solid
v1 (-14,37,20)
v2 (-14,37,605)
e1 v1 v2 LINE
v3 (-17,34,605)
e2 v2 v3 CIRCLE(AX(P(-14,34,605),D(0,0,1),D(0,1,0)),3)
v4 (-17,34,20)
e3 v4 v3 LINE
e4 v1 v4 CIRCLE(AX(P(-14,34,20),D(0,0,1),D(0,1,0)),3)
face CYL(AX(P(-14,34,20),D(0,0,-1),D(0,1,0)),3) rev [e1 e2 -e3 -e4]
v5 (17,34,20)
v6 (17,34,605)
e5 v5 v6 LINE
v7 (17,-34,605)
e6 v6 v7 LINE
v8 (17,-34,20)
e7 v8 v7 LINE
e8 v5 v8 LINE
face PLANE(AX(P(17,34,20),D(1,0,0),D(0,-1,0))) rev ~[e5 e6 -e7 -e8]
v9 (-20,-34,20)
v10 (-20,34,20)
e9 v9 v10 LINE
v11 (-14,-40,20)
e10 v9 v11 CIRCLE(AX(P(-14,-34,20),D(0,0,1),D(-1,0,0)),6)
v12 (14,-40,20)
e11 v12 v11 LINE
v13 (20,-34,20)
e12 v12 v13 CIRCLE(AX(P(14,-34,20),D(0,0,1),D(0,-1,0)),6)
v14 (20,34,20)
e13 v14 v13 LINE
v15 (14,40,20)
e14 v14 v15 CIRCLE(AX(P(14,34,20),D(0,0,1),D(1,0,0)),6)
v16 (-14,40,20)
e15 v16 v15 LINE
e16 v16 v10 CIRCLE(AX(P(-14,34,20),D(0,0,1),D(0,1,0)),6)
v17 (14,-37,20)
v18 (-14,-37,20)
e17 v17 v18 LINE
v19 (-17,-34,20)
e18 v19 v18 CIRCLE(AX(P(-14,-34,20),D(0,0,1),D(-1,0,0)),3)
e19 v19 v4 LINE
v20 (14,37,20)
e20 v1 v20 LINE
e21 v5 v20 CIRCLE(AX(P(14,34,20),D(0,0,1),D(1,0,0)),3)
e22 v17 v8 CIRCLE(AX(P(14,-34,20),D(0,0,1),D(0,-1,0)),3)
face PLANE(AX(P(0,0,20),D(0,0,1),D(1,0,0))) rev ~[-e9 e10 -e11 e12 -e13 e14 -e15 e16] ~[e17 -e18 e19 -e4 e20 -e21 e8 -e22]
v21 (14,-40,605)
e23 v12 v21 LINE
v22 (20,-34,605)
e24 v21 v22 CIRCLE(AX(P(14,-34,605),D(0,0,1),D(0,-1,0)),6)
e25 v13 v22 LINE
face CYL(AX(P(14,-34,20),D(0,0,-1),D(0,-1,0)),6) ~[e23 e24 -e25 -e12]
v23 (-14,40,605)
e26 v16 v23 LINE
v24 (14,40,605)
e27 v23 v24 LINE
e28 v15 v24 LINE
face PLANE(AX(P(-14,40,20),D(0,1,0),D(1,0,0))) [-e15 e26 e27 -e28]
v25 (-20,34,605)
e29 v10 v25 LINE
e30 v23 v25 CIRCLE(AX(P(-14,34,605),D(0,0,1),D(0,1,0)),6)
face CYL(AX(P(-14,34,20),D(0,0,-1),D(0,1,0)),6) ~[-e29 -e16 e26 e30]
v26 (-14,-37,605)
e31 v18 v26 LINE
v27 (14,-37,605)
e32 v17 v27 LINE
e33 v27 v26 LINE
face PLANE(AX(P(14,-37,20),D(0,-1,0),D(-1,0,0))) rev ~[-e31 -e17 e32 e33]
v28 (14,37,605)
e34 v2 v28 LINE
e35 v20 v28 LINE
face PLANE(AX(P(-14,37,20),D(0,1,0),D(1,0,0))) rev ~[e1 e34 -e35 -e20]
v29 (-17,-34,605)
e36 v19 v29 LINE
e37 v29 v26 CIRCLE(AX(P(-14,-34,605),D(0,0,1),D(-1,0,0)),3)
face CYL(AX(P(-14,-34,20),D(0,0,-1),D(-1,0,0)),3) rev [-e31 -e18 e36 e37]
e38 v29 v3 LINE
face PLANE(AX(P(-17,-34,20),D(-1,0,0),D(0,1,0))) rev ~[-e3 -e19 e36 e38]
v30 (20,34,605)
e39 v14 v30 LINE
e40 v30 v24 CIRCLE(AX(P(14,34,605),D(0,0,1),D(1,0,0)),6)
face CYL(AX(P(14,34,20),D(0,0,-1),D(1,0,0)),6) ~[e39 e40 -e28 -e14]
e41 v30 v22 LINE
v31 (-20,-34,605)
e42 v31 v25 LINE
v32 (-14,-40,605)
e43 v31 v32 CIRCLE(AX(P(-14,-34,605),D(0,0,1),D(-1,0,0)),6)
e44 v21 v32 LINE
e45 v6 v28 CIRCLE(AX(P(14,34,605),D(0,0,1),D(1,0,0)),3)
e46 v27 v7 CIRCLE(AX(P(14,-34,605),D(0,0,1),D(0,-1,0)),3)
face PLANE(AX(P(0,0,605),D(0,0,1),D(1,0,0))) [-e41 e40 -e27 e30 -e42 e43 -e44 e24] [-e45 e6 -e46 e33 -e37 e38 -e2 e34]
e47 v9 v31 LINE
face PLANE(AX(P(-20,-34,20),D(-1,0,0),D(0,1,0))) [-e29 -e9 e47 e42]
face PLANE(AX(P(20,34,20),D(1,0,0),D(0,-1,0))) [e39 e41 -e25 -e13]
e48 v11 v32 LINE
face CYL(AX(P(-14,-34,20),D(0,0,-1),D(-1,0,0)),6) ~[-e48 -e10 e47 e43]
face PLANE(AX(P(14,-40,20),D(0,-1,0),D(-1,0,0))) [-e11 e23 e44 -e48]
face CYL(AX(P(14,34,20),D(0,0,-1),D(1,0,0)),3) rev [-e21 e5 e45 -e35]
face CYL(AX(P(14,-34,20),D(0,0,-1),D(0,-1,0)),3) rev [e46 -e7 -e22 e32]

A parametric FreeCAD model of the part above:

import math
import FreeCAD as App
import Part
import Sketcher

V = App.Vector
Q = App.Units.Quantity

doc = App.newDocument("Part")
body = doc.addObject("PartDesign::Body", "Body")

sketch1 = body.newObject("Sketcher::SketchObject", "Sketch")
sketch1.AttachmentSupport = (doc.getObject("XY_Plane"), [""])
sketch1.MapMode = "FlatFace"
sketch1.AttachmentOffset = App.Placement(V(0, 0, 20), App.Rotation())
sketch1.addGeometry(Part.LineSegment(V(-20, 34, 0), V(-20, -34, 0)), False)
sketch1.addGeometry(Part.ArcOfCircle(Part.Circle(V(-14, -34, 0), V(0, 0, 1), 6), math.radians(180), math.radians(270)), False)
sketch1.addGeometry(Part.LineSegment(V(-14, -40, 0), V(14, -40, 0)), False)
sketch1.addGeometry(Part.ArcOfCircle(Part.Circle(V(14, -34, 0), V(0, 0, 1), 6), math.radians(-90), math.radians(0)), False)
sketch1.addGeometry(Part.LineSegment(V(20, -34, 0), V(20, 34, 0)), False)
sketch1.addGeometry(Part.ArcOfCircle(Part.Circle(V(14, 34, 0), V(0, 0, 1), 6), math.radians(0), math.radians(90)), False)
sketch1.addGeometry(Part.LineSegment(V(14, 40, 0), V(-14, 40, 0)), False)
sketch1.addGeometry(Part.ArcOfCircle(Part.Circle(V(-14, 34, 0), V(0, 0, 1), 6), math.radians(90), math.radians(180)), False)
sketch1.addGeometry(Part.ArcOfCircle(Part.Circle(V(-14, 34, 0), V(0, 0, 1), 3), math.radians(90), math.radians(180)), False)
sketch1.addGeometry(Part.LineSegment(V(-14, 37, 0), V(14, 37, 0)), False)
sketch1.addGeometry(Part.ArcOfCircle(Part.Circle(V(14, 34, 0), V(0, 0, 1), 3), math.radians(0), math.radians(90)), False)
sketch1.addGeometry(Part.LineSegment(V(17, 34, 0), V(17, -34, 0)), False)
sketch1.addGeometry(Part.ArcOfCircle(Part.Circle(V(14, -34, 0), V(0, 0, 1), 3), math.radians(-90), math.radians(0)), False)
sketch1.addGeometry(Part.LineSegment(V(14, -37, 0), V(-14, -37, 0)), False)
sketch1.addGeometry(Part.ArcOfCircle(Part.Circle(V(-14, -34, 0), V(0, 0, 1), 3), math.radians(180), math.radians(270)), False)
sketch1.addGeometry(Part.LineSegment(V(-17, -34, 0), V(-17, 34, 0)), False)
sketch1.addConstraint(Sketcher.Constraint("Tangent", 0, 2, 1, 1))
sketch1.addConstraint(Sketcher.Constraint("Tangent", 1, 2, 2, 1))
sketch1.addConstraint(Sketcher.Constraint("Tangent", 2, 2, 3, 1))
sketch1.addConstraint(Sketcher.Constraint("Tangent", 3, 2, 4, 1))
sketch1.addConstraint(Sketcher.Constraint("Tangent", 4, 2, 5, 1))
sketch1.addConstraint(Sketcher.Constraint("Tangent", 5, 2, 6, 1))
sketch1.addConstraint(Sketcher.Constraint("Tangent", 6, 2, 7, 1))
sketch1.addConstraint(Sketcher.Constraint("Tangent", 7, 2, 0, 1))
sketch1.addConstraint(Sketcher.Constraint("Tangent", 8, 1, 9, 1))
sketch1.addConstraint(Sketcher.Constraint("Tangent", 9, 2, 10, 2))
sketch1.addConstraint(Sketcher.Constraint("Tangent", 10, 1, 11, 1))
sketch1.addConstraint(Sketcher.Constraint("Tangent", 11, 2, 12, 2))
sketch1.addConstraint(Sketcher.Constraint("Tangent", 12, 1, 13, 1))
sketch1.addConstraint(Sketcher.Constraint("Tangent", 13, 2, 14, 2))
sketch1.addConstraint(Sketcher.Constraint("Tangent", 14, 1, 15, 1))
sketch1.addConstraint(Sketcher.Constraint("Tangent", 15, 2, 8, 2))
sketch1.addConstraint(Sketcher.Constraint("Vertical", 0))
sketch1.addConstraint(Sketcher.Constraint("Horizontal", 2))
sketch1.addConstraint(Sketcher.Constraint("Vertical", 4))
sketch1.addConstraint(Sketcher.Constraint("Horizontal", 6))
sketch1.addConstraint(Sketcher.Constraint("Horizontal", 9))
sketch1.addConstraint(Sketcher.Constraint("Vertical", 11))
sketch1.addConstraint(Sketcher.Constraint("Horizontal", 13))
sketch1.addConstraint(Sketcher.Constraint("Vertical", 15))
sketch1.addConstraint(Sketcher.Constraint("Coincident", 8, 3, 7, 3))
sketch1.addConstraint(Sketcher.Constraint("Coincident", 10, 3, 5, 3))
sketch1.addConstraint(Sketcher.Constraint("Coincident", 12, 3, 3, 3))
sketch1.addConstraint(Sketcher.Constraint("Equal", 1, 3))
sketch1.addConstraint(Sketcher.Constraint("Equal", 3, 5))
sketch1.addConstraint(Sketcher.Constraint("Equal", 5, 7))
sketch1.addConstraint(Sketcher.Constraint("Equal", 12, 14))
sketch1.addConstraint(Sketcher.Constraint("Symmetric", 1, 3, 5, 3, -1, 1))
sketch1.addConstraint(Sketcher.Constraint("Radius", 1, Q("6 mm")))
sketch1.addConstraint(Sketcher.Constraint("Radius", 8, Q("3 mm")))
sketch1.addConstraint(Sketcher.Constraint("DistanceX", 0, 2, -1, 1, Q("20 mm")))
sketch1.addConstraint(Sketcher.Constraint("DistanceY", 1, 2, -1, 1, Q("40 mm")))
pad1 = body.newObject("PartDesign::Pad", "Pad")
pad1.Profile = sketch1
pad1.Length = 585

doc.recompute()
